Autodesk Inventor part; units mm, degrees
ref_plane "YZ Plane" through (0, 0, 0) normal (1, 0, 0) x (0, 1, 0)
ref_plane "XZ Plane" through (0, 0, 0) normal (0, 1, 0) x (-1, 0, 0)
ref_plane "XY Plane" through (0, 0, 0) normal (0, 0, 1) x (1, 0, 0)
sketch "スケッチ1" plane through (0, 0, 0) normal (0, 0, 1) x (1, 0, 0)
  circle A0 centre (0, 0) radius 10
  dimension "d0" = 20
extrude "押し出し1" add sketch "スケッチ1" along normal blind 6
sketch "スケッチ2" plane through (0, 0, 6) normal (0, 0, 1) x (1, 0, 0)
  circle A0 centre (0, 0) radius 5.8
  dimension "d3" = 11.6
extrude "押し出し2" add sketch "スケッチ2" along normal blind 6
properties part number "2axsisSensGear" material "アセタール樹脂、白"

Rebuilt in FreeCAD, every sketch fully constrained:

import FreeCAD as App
import Part
import Sketcher
Q = App.Units.Quantity

doc = App.newDocument("Part")
body = doc.addObject("PartDesign::Body", "Body")

# Sketch on XY plane
sketch1 = body.newObject("Sketcher::SketchObject", "Sketch")
sketch1.AttachmentSupport = (doc.getObject("XY_Plane"), [""])
sketch1.MapMode = "FlatFace"
sketch1.addGeometry(Part.Circle(App.Vector(0, 0, 0), App.Vector(0, 0, 1), 10), False)
sketch1.addConstraint(Sketcher.Constraint("Coincident", 0, 3, -1, 1))
sketch1.addConstraint(Sketcher.Constraint("Diameter", 0, Q("20 mm")))
pad1 = body.newObject("PartDesign::Pad", "Pad")
pad1.Profile = sketch1
pad1.Length = 6

# Sketch on XY plane
sketch2 = body.newObject("Sketcher::SketchObject", "Sketch001")
sketch2.AttachmentSupport = (doc.getObject("XY_Plane"), [""])
sketch2.MapMode = "FlatFace"
sketch2.AttachmentOffset = App.Placement(App.Vector(0, 0, 6), App.Rotation())
sketch2.addGeometry(Part.Circle(App.Vector(0, 0, 0), App.Vector(0, 0, 1), 6), False)
sketch2.addConstraint(Sketcher.Constraint("Coincident", 0, 3, -1, 1))
sketch2.addConstraint(Sketcher.Constraint("Diameter", 0, Q("11.6 mm")))
pad2 = body.newObject("PartDesign::Pad", "Pad001")
pad2.Profile = sketch2
pad2.Length = 6

doc.recompute()
